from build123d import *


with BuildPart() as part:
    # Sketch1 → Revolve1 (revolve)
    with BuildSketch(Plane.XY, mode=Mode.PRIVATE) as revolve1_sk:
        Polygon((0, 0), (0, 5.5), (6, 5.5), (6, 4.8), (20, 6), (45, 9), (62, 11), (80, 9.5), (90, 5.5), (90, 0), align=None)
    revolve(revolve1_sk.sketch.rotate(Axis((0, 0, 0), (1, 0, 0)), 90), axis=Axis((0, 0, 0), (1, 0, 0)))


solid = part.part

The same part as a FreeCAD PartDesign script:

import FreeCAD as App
import Part
import Sketcher

doc = App.newDocument("Part")
params = doc.addObject("Spreadsheet::Sheet", "Params")
for row, (alias, value) in enumerate([
    ("sketch1_width", "90 mm"),
    ("sketch1_width2", "6 mm"),
    ("sketch1_height", "5.5 mm"),
    ("sketch1_height2", "0.7 mm"),
    ("revolution_angle", "360 deg"),
], start=1):
    params.set(f"A{row}", alias)
    params.set(f"B{row}", "=" + value)
    params.setAlias(f"B{row}", alias)

body = doc.addObject("PartDesign::Body", "Body")

# Sketch on XY plane
sketch1 = body.newObject("Sketcher::SketchObject", "Sketch")
sketch1.AttachmentSupport = (doc.getObject("XY_Plane"), [""])
sketch1.MapMode = "FlatFace"
sketch1.addGeometry(Part.LineSegment(App.Vector(0, 5.5, 0), App.Vector(0, 0, 0)), False)
sketch1.addGeometry(Part.LineSegment(App.Vector(0, 0, 0), App.Vector(90, 0, 0)), False)
sketch1.addGeometry(Part.LineSegment(App.Vector(90, 0, 0), App.Vector(90, 5.5, 0)), False)
sketch1.addGeometry(Part.LineSegment(App.Vector(90, 5.5, 0), App.Vector(80, 9.5, 0)), False)
sketch1.addGeometry(Part.LineSegment(App.Vector(80, 9.5, 0), App.Vector(62, 11, 0)), False)
sketch1.addGeometry(Part.LineSegment(App.Vector(62, 11, 0), App.Vector(45, 9, 0)), False)
sketch1.addGeometry(Part.LineSegment(App.Vector(45, 9, 0), App.Vector(20, 6, 0)), False)
sketch1.addGeometry(Part.LineSegment(App.Vector(20, 6, 0), App.Vector(6, 4.8, 0)), False)
sketch1.addGeometry(Part.LineSegment(App.Vector(6, 4.8, 0), App.Vector(6, 5.5, 0)), False)
sketch1.addGeometry(Part.LineSegment(App.Vector(6, 5.5, 0), App.Vector(0, 5.5, 0)), False)
sketch1.addConstraint(Sketcher.Constraint("Coincident", 0, 2, 1, 1))
sketch1.addConstraint(Sketcher.Constraint("Coincident", 1, 2, 2, 1))
sketch1.addConstraint(Sketcher.Constraint("Coincident", 2, 2, 3, 1))
sketch1.addConstraint(Sketcher.Constraint("Coincident", 3, 2, 4, 1))
sketch1.addConstraint(Sketcher.Constraint("Coincident", 4, 2, 5, 1))
sketch1.addConstraint(Sketcher.Constraint("Coincident", 5, 2, 6, 1))
sketch1.addConstraint(Sketcher.Constraint("Coincident", 6, 2, 7, 1))
sketch1.addConstraint(Sketcher.Constraint("Coincident", 7, 2, 8, 1))
sketch1.addConstraint(Sketcher.Constraint("Coincident", 8, 2, 9, 1))
sketch1.addConstraint(Sketcher.Constraint("Coincident", 9, 2, 0, 1))
sketch1.addConstraint(Sketcher.Constraint("Vertical", 0))
sketch1.addConstraint(Sketcher.Constraint("Horizontal", 1))
sketch1.addConstraint(Sketcher.Constraint("Vertical", 2))
sketch1.addConstraint(Sketcher.Constraint("Vertical", 8))
sketch1.addConstraint(Sketcher.Constraint("Horizontal", 9))
sketch1.addConstraint(Sketcher.Constraint("Coincident", 0, 2, -1, 1))
sketch1.addConstraint(Sketcher.Constraint("Horizontal", 2, 2, 8, 2))
sketch1.addConstraint(Sketcher.Constraint("DistanceX", 1, 1, 1, 2, 90.0))
sketch1.addConstraint(Sketcher.Constraint("DistanceX", 9, 2, 9, 1, 6.0))
sketch1.addConstraint(Sketcher.Constraint("DistanceY", 0, 2, 0, 1, 5.5))
sketch1.addConstraint(Sketcher.Constraint("DistanceY", 8, 1, 8, 2, 0.7))
sketch1.addConstraint(Sketcher.Constraint("DistanceX", -1, 1, 3, 2, 80.0))
sketch1.addConstraint(Sketcher.Constraint("DistanceX", -1, 1, 4, 2, 62.0))
sketch1.addConstraint(Sketcher.Constraint("DistanceY", -1, 1, 4, 2, 11.0))
sketch1.addConstraint(Sketcher.Constraint("DistanceX", -1, 1, 5, 2, 45.0))
sketch1.addConstraint(Sketcher.Constraint("DistanceY", -1, 1, 5, 2, 9.0))
sketch1.addConstraint(Sketcher.Constraint("DistanceX", -1, 1, 6, 2, 20.0))
sketch1.addConstraint(Sketcher.Constraint("DistanceY", -1, 1, 6, 2, 6.0))
sketch1.addConstraint(Sketcher.Constraint("DistanceY", 2, 2, 3, 2, 4.0))
sketch1.setExpression("Constraints[17]", "Params.sketch1_width")
sketch1.setExpression("Constraints[18]", "Params.sketch1_width2")
sketch1.setExpression("Constraints[19]", "Params.sketch1_height")
sketch1.setExpression("Constraints[20]", "Params.sketch1_height2")
revolution = body.newObject("PartDesign::Revolution", "Revolution")
revolution.Profile = sketch1
revolution.ReferenceAxis = (sketch1, ["H_Axis"])
revolution.setExpression("Angle", "Params.revolution_angle")

doc.recompute()
